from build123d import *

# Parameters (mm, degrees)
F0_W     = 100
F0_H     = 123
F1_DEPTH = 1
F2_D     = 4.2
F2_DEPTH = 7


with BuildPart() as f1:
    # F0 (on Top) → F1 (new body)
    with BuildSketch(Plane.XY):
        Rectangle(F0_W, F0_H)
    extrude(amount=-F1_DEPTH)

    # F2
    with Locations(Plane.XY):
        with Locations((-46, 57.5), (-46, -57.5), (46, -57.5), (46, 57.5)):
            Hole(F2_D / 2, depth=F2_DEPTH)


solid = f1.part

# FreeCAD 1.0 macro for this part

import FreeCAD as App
import Part
import Sketcher

doc = App.newDocument("Part")
body = doc.addObject("PartDesign::Body", "Body")

sketch1 = body.newObject("Sketcher::SketchObject", "Sketch")
sketch1.AttachmentSupport = (doc.getObject("XY_Plane"), [""])
sketch1.MapMode = "FlatFace"
sketch1.addGeometry([
    Part.LineSegment(App.Vector(-50, 62, 0), App.Vector(-50, -62, 0)),
    Part.LineSegment(App.Vector(-50, -62, 0), App.Vector(50, -62, 0)),
    Part.LineSegment(App.Vector(50, -62, 0), App.Vector(50, 62, 0)),
    Part.LineSegment(App.Vector(50, 62, 0), App.Vector(-50, 62, 0)),
], False)
sketch1.addConstraint([
    Sketcher.Constraint("Coincident", 0, 2, 1, 1),
    Sketcher.Constraint("Coincident", 1, 2, 2, 1),
    Sketcher.Constraint("Coincident", 2, 2, 3, 1),
    Sketcher.Constraint("Coincident", 3, 2, 0, 1),
    Sketcher.Constraint("Vertical", 0),
    Sketcher.Constraint("Horizontal", 1),
    Sketcher.Constraint("Vertical", 2),
    Sketcher.Constraint("Horizontal", 3),
    Sketcher.Constraint("Symmetric", 0, 2, 2, 2, -1, 1),
    Sketcher.Constraint("DistanceX", 1, 1, 1, 2, 100.0),
    Sketcher.Constraint("DistanceY", 0, 2, 0, 1, 123.0),
])
pad1 = body.newObject("PartDesign::Pad", "Pad")
pad1.Profile = sketch1
pad1.Length = 1
pad1.Reversed = True

sketch2 = body.newObject("Sketcher::SketchObject", "Sketch001")
sketch2.AttachmentSupport = (doc.getObject("XY_Plane"), [""])
sketch2.MapMode = "FlatFace"
sketch2.addGeometry([
    Part.Circle(App.Vector(-46, 57.5, 0), App.Vector(0, 0, 1), 2.1),
    Part.Circle(App.Vector(-46, -57.5, 0), App.Vector(0, 0, 1), 2.1),
    Part.Circle(App.Vector(46, -57.5, 0), App.Vector(0, 0, 1), 2.1),
    Part.Circle(App.Vector(46, 57.5, 0), App.Vector(0, 0, 1), 2.1),
], False)
sketch2.addConstraint([
    Sketcher.Constraint("Equal", 0, 1),
    Sketcher.Constraint("Equal", 1, 2),
    Sketcher.Constraint("Equal", 2, 3),
    Sketcher.Constraint("Symmetric", 0, 3, 2, 3, -1, 1),
    Sketcher.Constraint("Symmetric", 1, 3, 3, 3, -1, 1),
    Sketcher.Constraint("Symmetric", 1, 3, 2, 3, -2),
    Sketcher.Constraint("Diameter", 0, 4.2),
    Sketcher.Constraint("DistanceX", 0, 3, -1, 1, 46.0),
    Sketcher.Constraint("DistanceY", 1, 3, 0, 3, 115.0),
])
doc.recompute()
hole = body.newObject("PartDesign::Hole", "Hole")
hole.Profile = sketch2
hole.ThreadType = "None"
hole.Diameter = 4.2
hole.DepthType = "Dimension"
hole.Depth = 7
hole.DrillPoint = "Flat"

doc.recompute()
